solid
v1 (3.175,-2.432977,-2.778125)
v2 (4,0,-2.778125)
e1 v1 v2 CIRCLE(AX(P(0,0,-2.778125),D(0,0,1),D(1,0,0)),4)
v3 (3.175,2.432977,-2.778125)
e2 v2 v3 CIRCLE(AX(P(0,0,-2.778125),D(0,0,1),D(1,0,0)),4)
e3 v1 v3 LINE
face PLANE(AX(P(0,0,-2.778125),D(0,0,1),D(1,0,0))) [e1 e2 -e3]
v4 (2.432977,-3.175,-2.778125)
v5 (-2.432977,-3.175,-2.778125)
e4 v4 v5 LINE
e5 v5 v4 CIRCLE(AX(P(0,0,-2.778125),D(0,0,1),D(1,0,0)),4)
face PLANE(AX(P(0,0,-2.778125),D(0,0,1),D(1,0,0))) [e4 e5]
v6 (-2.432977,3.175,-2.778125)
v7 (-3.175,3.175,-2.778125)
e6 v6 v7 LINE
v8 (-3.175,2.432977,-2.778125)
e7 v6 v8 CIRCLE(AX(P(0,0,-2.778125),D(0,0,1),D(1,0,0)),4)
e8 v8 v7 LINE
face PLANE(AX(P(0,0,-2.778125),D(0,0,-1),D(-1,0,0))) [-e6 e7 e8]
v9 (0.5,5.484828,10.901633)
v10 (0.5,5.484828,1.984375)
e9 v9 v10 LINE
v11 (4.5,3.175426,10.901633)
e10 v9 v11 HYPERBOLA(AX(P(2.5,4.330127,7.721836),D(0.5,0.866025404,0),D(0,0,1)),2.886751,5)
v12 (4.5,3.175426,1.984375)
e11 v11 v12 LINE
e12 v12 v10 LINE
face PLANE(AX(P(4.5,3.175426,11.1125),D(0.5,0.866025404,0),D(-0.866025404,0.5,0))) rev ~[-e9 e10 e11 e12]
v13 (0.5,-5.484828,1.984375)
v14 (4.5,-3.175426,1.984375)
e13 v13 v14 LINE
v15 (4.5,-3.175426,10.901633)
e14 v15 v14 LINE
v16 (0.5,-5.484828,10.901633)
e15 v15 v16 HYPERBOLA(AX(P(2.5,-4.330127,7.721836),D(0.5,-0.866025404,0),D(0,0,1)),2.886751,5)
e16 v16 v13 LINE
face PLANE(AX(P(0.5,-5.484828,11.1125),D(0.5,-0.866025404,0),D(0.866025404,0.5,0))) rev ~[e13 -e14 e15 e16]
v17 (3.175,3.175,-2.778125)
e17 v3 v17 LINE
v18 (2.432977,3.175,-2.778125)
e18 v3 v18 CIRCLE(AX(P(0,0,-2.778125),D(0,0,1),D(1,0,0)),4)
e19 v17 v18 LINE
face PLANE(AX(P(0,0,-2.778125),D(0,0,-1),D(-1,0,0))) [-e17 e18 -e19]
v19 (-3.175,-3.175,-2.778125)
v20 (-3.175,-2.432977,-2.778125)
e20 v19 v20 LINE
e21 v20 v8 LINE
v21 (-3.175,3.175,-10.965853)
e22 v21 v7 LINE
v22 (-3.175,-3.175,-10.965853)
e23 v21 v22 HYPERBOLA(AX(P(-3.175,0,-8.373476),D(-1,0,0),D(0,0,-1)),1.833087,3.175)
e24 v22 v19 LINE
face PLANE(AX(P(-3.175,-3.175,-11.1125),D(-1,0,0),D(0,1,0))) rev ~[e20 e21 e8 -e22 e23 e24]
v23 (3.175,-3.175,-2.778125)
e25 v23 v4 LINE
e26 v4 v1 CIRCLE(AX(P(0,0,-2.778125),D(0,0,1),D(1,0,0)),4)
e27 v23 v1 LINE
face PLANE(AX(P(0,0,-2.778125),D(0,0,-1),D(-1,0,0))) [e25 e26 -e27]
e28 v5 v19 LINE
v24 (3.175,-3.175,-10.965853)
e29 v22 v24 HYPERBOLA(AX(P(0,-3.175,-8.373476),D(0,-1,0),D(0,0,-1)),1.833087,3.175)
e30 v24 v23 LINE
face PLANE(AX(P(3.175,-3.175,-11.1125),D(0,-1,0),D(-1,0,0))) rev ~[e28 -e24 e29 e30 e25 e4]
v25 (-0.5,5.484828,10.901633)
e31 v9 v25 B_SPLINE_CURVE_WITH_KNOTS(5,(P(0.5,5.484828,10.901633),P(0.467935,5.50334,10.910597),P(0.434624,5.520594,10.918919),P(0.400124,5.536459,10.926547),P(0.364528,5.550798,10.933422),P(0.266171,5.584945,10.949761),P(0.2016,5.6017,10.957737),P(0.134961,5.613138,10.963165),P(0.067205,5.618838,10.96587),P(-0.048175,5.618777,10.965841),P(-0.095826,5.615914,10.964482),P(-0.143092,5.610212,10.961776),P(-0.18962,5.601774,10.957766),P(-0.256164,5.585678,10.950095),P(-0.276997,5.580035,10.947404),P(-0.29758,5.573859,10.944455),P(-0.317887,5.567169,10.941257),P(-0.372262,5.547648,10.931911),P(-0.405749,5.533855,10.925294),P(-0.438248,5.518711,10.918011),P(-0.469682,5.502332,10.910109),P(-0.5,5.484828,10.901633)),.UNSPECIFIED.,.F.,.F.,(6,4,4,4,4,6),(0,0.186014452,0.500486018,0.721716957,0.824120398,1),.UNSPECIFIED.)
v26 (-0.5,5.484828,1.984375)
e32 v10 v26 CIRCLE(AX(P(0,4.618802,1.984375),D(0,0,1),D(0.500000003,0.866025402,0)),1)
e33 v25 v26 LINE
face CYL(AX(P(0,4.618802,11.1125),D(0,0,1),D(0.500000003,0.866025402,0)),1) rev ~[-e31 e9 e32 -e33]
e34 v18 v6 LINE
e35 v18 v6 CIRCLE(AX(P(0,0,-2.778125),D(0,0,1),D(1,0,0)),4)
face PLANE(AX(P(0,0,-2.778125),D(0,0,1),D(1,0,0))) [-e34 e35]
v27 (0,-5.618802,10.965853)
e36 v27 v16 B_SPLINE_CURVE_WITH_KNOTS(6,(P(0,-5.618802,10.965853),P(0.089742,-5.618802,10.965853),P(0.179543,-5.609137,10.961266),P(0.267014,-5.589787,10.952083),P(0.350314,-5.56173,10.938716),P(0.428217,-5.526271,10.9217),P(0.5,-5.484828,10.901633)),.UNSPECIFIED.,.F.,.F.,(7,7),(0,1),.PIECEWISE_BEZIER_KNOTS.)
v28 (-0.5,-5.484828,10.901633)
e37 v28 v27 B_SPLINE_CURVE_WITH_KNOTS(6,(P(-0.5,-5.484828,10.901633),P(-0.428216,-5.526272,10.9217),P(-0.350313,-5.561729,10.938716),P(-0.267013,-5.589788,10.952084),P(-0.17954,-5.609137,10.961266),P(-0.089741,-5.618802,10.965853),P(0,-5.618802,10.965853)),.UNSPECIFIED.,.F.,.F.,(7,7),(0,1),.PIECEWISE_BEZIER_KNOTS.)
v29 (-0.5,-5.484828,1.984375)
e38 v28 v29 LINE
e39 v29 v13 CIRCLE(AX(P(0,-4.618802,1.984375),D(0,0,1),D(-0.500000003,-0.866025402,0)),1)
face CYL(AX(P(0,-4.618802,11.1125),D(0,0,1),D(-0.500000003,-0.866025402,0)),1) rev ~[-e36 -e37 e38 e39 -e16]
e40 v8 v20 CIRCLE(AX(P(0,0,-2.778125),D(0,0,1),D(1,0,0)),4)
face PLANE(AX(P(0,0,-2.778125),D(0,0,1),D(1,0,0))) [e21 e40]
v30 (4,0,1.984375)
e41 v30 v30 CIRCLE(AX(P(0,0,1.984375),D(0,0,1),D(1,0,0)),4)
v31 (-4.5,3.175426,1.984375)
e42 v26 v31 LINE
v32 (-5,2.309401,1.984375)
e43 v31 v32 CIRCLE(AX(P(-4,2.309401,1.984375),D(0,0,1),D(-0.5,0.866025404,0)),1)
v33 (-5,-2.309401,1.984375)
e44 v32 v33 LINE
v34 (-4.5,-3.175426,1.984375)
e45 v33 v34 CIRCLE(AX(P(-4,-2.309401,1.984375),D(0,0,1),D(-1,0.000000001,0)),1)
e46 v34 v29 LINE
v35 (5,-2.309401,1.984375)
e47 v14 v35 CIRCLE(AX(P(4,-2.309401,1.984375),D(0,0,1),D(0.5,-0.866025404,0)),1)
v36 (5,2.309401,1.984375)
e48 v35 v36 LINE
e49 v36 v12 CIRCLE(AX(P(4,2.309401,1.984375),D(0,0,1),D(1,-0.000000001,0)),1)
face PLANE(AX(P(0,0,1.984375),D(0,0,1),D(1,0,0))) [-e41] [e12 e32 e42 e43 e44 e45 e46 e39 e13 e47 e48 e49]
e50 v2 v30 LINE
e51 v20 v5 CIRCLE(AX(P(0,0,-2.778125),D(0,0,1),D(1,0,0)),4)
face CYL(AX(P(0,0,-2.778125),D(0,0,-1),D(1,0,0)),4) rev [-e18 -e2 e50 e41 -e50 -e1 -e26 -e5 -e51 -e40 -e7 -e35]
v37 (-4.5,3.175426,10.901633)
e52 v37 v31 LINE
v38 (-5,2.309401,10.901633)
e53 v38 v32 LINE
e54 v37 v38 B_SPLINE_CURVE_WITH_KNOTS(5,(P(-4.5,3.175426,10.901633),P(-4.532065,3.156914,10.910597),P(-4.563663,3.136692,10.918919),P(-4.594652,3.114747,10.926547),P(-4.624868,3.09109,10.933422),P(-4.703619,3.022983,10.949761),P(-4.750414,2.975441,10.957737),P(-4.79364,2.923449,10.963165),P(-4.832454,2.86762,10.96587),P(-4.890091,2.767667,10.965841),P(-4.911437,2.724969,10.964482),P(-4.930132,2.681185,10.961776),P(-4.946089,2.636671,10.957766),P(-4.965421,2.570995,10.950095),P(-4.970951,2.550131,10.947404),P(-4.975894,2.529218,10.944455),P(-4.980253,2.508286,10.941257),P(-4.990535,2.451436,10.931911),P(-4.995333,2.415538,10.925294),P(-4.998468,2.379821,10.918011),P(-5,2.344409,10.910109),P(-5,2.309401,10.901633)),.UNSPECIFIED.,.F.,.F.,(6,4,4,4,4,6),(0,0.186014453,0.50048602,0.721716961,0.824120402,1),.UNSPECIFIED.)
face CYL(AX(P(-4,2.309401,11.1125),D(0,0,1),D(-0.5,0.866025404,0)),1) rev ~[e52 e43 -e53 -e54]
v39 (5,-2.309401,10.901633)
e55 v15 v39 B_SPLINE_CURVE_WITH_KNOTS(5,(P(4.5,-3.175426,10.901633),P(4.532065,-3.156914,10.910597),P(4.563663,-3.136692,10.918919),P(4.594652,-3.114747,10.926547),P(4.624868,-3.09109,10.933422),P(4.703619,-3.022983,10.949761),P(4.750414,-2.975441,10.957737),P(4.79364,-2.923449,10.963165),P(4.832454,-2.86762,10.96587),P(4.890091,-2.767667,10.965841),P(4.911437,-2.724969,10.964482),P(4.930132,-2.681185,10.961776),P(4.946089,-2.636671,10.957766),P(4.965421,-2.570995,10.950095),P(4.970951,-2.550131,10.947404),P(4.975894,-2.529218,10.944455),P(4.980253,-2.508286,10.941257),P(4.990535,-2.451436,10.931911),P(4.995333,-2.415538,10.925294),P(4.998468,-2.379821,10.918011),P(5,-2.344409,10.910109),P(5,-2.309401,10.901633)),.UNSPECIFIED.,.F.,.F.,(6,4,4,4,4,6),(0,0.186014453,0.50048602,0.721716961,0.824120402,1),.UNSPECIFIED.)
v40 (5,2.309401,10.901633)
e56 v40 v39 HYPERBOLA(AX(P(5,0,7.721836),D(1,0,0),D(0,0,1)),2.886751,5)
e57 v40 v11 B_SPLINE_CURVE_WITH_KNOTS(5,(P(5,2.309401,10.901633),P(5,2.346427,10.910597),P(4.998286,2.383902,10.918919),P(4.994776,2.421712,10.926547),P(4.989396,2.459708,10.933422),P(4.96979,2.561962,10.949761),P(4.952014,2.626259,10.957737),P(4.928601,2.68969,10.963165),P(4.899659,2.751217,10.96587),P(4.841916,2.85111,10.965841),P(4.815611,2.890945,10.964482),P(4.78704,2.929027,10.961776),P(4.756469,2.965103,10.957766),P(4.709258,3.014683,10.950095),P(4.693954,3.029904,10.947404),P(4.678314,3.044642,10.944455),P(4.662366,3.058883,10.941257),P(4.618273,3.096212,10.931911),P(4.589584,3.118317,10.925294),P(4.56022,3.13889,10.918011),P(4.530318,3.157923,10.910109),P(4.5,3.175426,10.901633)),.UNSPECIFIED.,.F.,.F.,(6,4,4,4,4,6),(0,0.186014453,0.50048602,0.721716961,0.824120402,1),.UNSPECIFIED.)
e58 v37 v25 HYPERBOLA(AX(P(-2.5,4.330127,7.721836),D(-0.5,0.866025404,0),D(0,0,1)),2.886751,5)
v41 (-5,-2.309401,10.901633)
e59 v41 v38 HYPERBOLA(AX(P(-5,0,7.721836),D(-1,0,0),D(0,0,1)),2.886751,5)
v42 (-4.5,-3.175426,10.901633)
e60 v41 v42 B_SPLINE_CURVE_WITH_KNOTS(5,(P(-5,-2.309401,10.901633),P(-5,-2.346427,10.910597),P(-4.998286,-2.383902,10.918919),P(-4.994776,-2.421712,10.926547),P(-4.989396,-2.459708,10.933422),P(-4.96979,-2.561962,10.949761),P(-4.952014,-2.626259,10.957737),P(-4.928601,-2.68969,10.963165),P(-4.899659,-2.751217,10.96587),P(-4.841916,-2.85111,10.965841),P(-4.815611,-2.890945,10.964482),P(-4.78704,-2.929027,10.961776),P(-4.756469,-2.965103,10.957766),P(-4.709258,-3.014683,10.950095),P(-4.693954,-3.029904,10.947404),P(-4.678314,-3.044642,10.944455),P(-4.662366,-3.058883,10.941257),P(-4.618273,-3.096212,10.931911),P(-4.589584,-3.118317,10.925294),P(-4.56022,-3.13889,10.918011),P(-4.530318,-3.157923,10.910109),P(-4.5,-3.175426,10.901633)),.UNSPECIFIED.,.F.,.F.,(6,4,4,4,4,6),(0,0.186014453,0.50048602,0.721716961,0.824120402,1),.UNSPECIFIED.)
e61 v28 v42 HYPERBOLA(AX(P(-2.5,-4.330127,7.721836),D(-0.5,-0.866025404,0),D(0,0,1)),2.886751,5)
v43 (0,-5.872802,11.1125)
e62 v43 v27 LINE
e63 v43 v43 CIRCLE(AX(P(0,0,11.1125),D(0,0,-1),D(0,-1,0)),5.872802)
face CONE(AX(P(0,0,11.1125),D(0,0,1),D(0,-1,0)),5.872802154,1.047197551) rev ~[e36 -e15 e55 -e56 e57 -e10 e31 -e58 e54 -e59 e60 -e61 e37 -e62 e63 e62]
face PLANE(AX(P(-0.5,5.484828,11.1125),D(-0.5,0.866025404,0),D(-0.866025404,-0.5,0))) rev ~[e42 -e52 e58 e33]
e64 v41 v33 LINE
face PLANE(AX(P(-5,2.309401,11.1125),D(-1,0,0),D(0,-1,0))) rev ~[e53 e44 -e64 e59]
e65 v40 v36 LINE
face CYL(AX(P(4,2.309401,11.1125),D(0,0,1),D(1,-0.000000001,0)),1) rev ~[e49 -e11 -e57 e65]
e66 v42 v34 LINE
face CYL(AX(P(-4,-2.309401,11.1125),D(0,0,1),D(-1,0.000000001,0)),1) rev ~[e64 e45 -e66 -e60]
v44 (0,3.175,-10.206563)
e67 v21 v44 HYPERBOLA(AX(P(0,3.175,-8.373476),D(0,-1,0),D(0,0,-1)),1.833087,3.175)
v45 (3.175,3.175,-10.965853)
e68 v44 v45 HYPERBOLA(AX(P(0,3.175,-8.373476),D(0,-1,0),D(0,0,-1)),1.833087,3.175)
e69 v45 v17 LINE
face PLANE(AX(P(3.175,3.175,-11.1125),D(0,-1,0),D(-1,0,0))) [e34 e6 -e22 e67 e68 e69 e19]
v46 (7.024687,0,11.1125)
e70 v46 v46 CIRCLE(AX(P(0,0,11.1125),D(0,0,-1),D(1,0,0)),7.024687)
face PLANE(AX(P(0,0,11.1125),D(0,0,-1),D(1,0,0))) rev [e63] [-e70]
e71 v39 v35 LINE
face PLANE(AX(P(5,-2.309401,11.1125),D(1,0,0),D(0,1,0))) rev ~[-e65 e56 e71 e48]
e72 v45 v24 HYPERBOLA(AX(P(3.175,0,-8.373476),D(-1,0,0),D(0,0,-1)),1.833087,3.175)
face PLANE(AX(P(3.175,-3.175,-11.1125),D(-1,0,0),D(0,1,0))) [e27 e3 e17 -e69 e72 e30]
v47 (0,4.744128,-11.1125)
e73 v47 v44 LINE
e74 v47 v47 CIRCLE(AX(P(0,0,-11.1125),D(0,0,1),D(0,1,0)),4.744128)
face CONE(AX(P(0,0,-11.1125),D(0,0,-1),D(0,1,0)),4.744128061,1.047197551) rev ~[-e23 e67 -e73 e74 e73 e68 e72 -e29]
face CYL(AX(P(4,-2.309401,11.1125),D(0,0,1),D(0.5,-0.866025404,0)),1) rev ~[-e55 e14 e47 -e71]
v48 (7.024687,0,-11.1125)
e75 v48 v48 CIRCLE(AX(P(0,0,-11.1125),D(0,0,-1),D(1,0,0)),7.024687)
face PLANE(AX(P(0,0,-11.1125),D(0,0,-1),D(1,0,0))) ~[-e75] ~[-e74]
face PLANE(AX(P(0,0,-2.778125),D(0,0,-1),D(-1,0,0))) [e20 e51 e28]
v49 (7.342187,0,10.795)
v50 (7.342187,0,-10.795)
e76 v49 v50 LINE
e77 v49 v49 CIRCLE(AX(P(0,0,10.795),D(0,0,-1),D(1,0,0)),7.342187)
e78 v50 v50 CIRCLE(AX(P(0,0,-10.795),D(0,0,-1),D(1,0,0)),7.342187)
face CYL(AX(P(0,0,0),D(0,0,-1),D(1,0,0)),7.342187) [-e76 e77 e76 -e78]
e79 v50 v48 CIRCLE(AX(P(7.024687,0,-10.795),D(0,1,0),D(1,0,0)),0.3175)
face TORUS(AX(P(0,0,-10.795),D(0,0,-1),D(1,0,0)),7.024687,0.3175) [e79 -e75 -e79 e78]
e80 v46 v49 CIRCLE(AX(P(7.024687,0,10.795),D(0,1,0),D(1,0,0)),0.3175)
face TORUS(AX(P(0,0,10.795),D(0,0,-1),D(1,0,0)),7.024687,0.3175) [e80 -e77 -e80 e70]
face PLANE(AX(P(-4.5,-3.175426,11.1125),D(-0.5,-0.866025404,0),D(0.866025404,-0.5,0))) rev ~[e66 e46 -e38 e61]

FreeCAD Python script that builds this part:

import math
import FreeCAD as App
import Part
import Sketcher
Q = App.Units.Quantity


def edges_at(feature, points):
    """Names of the edges that pass closest to the given points."""
    edges = feature.Shape.Edges
    near = lambda p: min(range(len(edges)), key=lambda i: edges[i].distToShape(Part.Vertex(*p))[0])
    return sorted({f"Edge{near(p) + 1}" for p in points})


def add_polygon(sketch, points):
    """Adds a closed chain of lines whose ends are joined by coincident constraints."""
    first, n = sketch.GeometryCount, len(points)
    for a, b in zip(points, points[1:] + points[:1]):
        sketch.addGeometry(Part.LineSegment(App.Vector(*a, 0), App.Vector(*b, 0)), False)
    for i in range(n):
        sketch.addConstraint(Sketcher.Constraint("Coincident", first + i, 2, first + (i + 1) % n, 1))

doc = App.newDocument("Part")
params = doc.addObject("Spreadsheet::Sheet", "Params")
for row, (alias, value) in enumerate([
    ("sketch1_height", "0.875 in"),
    ("revolution_angle", "360 deg"),
    ("pocket1_length", "0.359375 in"),
    ("pocket2_length", "0.1875 in"),
    ("sketch4_width", "0.25 in"),
    ("pocket3_length", "0.328125 in"),
    ("groove_angle", "360 deg"),
    ("fillet_radius", "0.0125 in"),
    ("groove2_angle", "360 deg"),
], start=1):
    params.set(f"A{row}", alias)
    params.set(f"B{row}", "=" + value)
    params.setAlias(f"B{row}", alias)

body = doc.addObject("PartDesign::Body", "Body")

sketch1 = doc.addObject("Sketcher::SketchObject", "Sketch")
body.addObject(sketch1)
sketch1.AttachmentSupport = (doc.YZ_Plane, [""])
sketch1.MapMode = "FlatFace"
add_polygon(sketch1, [(7, 11), (0, 11), (0, -11), (7, -11)])
sketch1.addConstraint([
    Sketcher.Constraint("Horizontal", 0),
    Sketcher.Constraint("Vertical", 1),
    Sketcher.Constraint("Horizontal", 2),
    Sketcher.Constraint("Vertical", 3),
    Sketcher.Constraint("Symmetric", 0, 2, 1, 2, -1, 1),
    Sketcher.Constraint("DistanceY", 1, 2, 1, 1, Q("0.875 in")),
    Sketcher.Constraint("DistanceX", 0, 2, 0, 1, 7.342187),
])
sketch1.setExpression("Constraints[9]", "Params.sketch1_height")
revolution = doc.addObject("PartDesign::Revolution", "Revolution")
body.addObject(revolution)
revolution.Profile = sketch1
revolution.ReferenceAxis = (sketch1, ["V_Axis"])
revolution.setExpression("Angle", "Params.revolution_angle")

sketch2 = doc.addObject("Sketcher::SketchObject", "Sketch001")
body.addObject(sketch2)
sketch2.AttachmentSupport = (doc.XY_Plane, [""])
sketch2.MapMode = "FlatFace"
sketch2.AttachmentOffset = App.Placement(App.Vector(0, 0, 0.4375 * 25.4), App.Rotation())
sketch2.addGeometry([
    Part.LineSegment(App.Vector(-5, 2.3, 0), App.Vector(-5, -2.3, 0)),
    Part.ArcOfCircle(Part.Circle(App.Vector(-4, -2.3, 0), App.Vector(0, 0, 1), 1), math.radians(180), math.radians(240)),
    Part.LineSegment(App.Vector(-4.5, -3.2, 0), App.Vector(-0.5, -5.5, 0)),
    Part.ArcOfCircle(Part.Circle(App.Vector(0, -4.6, 0), App.Vector(0, 0, 1), 1), math.radians(-120), math.radians(-60)),
    Part.LineSegment(App.Vector(0.5, -5.5, 0), App.Vector(4.5, -3.2, 0)),
    Part.ArcOfCircle(Part.Circle(App.Vector(4, -2.3, 0), App.Vector(0, 0, 1), 1), math.radians(-60), math.radians(0)),
    Part.LineSegment(App.Vector(5, -2.3, 0), App.Vector(5, 2.3, 0)),
    Part.ArcOfCircle(Part.Circle(App.Vector(4, 2.3, 0), App.Vector(0, 0, 1), 1), math.radians(0), math.radians(60)),
    Part.LineSegment(App.Vector(4.5, 3.2, 0), App.Vector(0.5, 5.5, 0)),
    Part.ArcOfCircle(Part.Circle(App.Vector(0, 4.6, 0), App.Vector(0, 0, 1), 1), math.radians(60), math.radians(120)),
    Part.LineSegment(App.Vector(-0.5, 5.5, 0), App.Vector(-4.5, 3.2, 0)),
    Part.ArcOfCircle(Part.Circle(App.Vector(-4, 2.3, 0), App.Vector(0, 0, 1), 1), math.radians(120), math.radians(180)),
], False)
sketch2.addConstraint([
    Sketcher.Constraint("Tangent", 0, 2, 1, 1),
    Sketcher.Constraint("Tangent", 1, 2, 2, 1),
    Sketcher.Constraint("Tangent", 2, 2, 3, 1),
    Sketcher.Constraint("Tangent", 3, 2, 4, 1),
    Sketcher.Constraint("Tangent", 4, 2, 5, 1),
    Sketcher.Constraint("Tangent", 5, 2, 6, 1),
    Sketcher.Constraint("Tangent", 6, 2, 7, 1),
    Sketcher.Constraint("Tangent", 7, 2, 8, 1),
    Sketcher.Constraint("Tangent", 8, 2, 9, 1),
    Sketcher.Constraint("Tangent", 9, 2, 10, 1),
    Sketcher.Constraint("Tangent", 10, 2, 11, 1),
    Sketcher.Constraint("Tangent", 11, 2, 0, 1),
    Sketcher.Constraint("Vertical", 0),
    Sketcher.Constraint("Vertical", 6),
    Sketcher.Constraint("Equal", 1, 3),
    Sketcher.Constraint("Equal", 3, 5),
    Sketcher.Constraint("Equal", 5, 7),
    Sketcher.Constraint("Equal", 7, 9),
    Sketcher.Constraint("Equal", 9, 11),
    Sketcher.Constraint("Symmetric", 1, 3, 7, 3, -1, 1),
    Sketcher.Constraint("Symmetric", 3, 3, 9, 3, -1, 1),
    Sketcher.Constraint("Symmetric", 2, 2, 3, 2, -2),
    Sketcher.Constraint("Parallel", 4, 10),
    Sketcher.Constraint("Angle", 2, Q("-30 deg")),
    Sketcher.Constraint("Radius", 1, 1.0),
    Sketcher.Constraint("DistanceX", 1, 3, -1, 1, 4.0),
    Sketcher.Constraint("DistanceY", 1, 3, -1, 1, 2.309401),
])
pocket1 = doc.addObject("PartDesign::Pocket", "Pocket")
body.addObject(pocket1)
pocket1.Profile = sketch2
pocket1.setExpression("Length", "Params.pocket1_length")

sketch3 = doc.addObject("Sketcher::SketchObject", "Sketch002")
body.addObject(sketch3)
sketch3.AttachmentSupport = (doc.XY_Plane, [""])
sketch3.MapMode = "FlatFace"
sketch3.AttachmentOffset = App.Placement(App.Vector(0, 0, -0.109375 * 25.4), App.Rotation())
sketch3.addGeometry(Part.Circle(App.Vector(0, 0, 0), App.Vector(0, 0, 1), 4), False)
sketch3.addConstraint([
    Sketcher.Constraint("Coincident", 0, 3, -1, 1),
    Sketcher.Constraint("Diameter", 0, 8.0),
])
pocket2 = doc.addObject("PartDesign::Pocket", "Pocket001")
body.addObject(pocket2)
pocket2.Profile = sketch3
pocket2.setExpression("Length", "Params.pocket2_length")
pocket2.Reversed = True

sketch4 = doc.addObject("Sketcher::SketchObject", "Sketch003")
body.addObject(sketch4)
sketch4.AttachmentSupport = (doc.XY_Plane, [""])
sketch4.MapMode = "FlatFace"
sketch4.AttachmentOffset = App.Placement(App.Vector(0, 0, -0.4375 * 25.4), App.Rotation())
add_polygon(sketch4, [(3, 3), (3, -3), (-3, -3), (-3, 3)])
sketch4.addConstraint([
    Sketcher.Constraint("Vertical", 0),
    Sketcher.Constraint("Horizontal", 1),
    Sketcher.Constraint("Vertical", 2),
    Sketcher.Constraint("Horizontal", 3),
    Sketcher.Constraint("Symmetric", 0, 2, 2, 2, -1, 1),
    Sketcher.Constraint("Equal", 3, 0),
    Sketcher.Constraint("DistanceX", 1, 2, 1, 1, Q("0.25 in")),
])
sketch4.setExpression("Constraints[10]", "Params.sketch4_width")
pocket3 = doc.addObject("PartDesign::Pocket", "Pocket002")
body.addObject(pocket3)
pocket3.Profile = sketch4
pocket3.setExpression("Length", "Params.pocket3_length")
pocket3.Reversed = True

sketch5 = doc.addObject("Sketcher::SketchObject", "Sketch004")
body.addObject(sketch5)
sketch5.AttachmentSupport = (doc.YZ_Plane, [""])
sketch5.MapMode = "FlatFace"
add_polygon(sketch5, [(0, -11.1), (4.7, -11.1), (0, -8.4)])
sketch5.addConstraint([
    Sketcher.Constraint("Horizontal", 0),
    Sketcher.Constraint("Vertical", 2),
    Sketcher.Constraint("PointOnObject", 1, 2, -2),
    Sketcher.Constraint("Angle", 1, Q("150 deg")),
    Sketcher.Constraint("DistanceY", 0, 2, -1, 1, Q("0.4375 in")),
    Sketcher.Constraint("DistanceX", 0, 1, 0, 2, 4.744128),
])
groove = doc.addObject("PartDesign::Groove", "Groove")
body.addObject(groove)
groove.Profile = sketch5
groove.ReferenceAxis = (sketch5, ["V_Axis"])
groove.setExpression("Angle", "Params.groove_angle")
doc.recompute()

fillet = doc.addObject("PartDesign::Fillet", "Fillet")
body.addObject(fillet)
fillet.Base = (groove, edges_at(groove, [(-7.342, 0, -11.113), (-7.342, 0, 11.113)]))
fillet.setExpression("Radius", "Params.fillet_radius")

sketch6 = doc.addObject("Sketcher::SketchObject", "Sketch005")
body.addObject(sketch6)
sketch6.AttachmentSupport = (doc.YZ_Plane, [""])
sketch6.MapMode = "FlatFace"
add_polygon(sketch6, [(0, 11.1), (-5.9, 11.1), (0, 7.7)])
sketch6.addConstraint([
    Sketcher.Constraint("Horizontal", 0),
    Sketcher.Constraint("Vertical", 2),
    Sketcher.Constraint("PointOnObject", 1, 2, -2),
    Sketcher.Constraint("Angle", 1, Q("-30 deg")),
    Sketcher.Constraint("DistanceY", -1, 1, 0, 2, Q("0.4375 in")),
    Sketcher.Constraint("DistanceX", 0, 2, 0, 1, 5.872802),
])
groove2 = doc.addObject("PartDesign::Groove", "Groove001")
body.addObject(groove2)
groove2.Profile = sketch6
groove2.ReferenceAxis = (sketch6, ["V_Axis"])
groove2.setExpression("Angle", "Params.groove2_angle")

doc.recompute()
